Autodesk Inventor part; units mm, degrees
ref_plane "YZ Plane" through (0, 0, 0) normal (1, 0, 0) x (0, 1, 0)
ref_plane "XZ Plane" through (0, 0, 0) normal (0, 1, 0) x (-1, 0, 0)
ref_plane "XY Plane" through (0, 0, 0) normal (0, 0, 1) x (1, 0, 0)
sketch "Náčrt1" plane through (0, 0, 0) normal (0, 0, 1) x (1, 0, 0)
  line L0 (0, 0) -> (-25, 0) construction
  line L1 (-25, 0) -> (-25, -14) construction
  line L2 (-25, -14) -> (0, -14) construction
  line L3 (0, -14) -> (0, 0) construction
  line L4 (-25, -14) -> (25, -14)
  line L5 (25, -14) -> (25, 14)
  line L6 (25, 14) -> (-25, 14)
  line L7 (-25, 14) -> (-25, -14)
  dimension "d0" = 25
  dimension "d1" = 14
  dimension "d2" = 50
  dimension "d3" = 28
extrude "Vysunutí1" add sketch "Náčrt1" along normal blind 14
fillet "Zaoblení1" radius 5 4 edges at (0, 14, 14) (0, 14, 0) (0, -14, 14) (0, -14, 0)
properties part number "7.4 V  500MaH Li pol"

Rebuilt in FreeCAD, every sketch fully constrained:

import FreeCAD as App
import Part
import Sketcher


def edges_at(feature, points):
    """Names of the edges that pass closest to the given points."""
    edges = feature.Shape.Edges
    near = lambda p: min(range(len(edges)), key=lambda i: edges[i].distToShape(Part.Vertex(*p))[0])
    return sorted({f"Edge{near(p) + 1}" for p in points})

doc = App.newDocument("Part")
body = doc.addObject("PartDesign::Body", "Body")

sketch1 = body.newObject("Sketcher::SketchObject", "Sketch")
sketch1.AttachmentSupport = (doc.getObject("XY_Plane"), [""])
sketch1.MapMode = "FlatFace"
sketch1.addGeometry([
    Part.LineSegment(App.Vector(-25, 14, 0), App.Vector(-25, -14, 0)),
    Part.LineSegment(App.Vector(-25, -14, 0), App.Vector(25, -14, 0)),
    Part.LineSegment(App.Vector(25, -14, 0), App.Vector(25, 14, 0)),
    Part.LineSegment(App.Vector(25, 14, 0), App.Vector(-25, 14, 0)),
], False)
sketch1.addConstraint([
    Sketcher.Constraint("Coincident", 0, 2, 1, 1),
    Sketcher.Constraint("Coincident", 1, 2, 2, 1),
    Sketcher.Constraint("Coincident", 2, 2, 3, 1),
    Sketcher.Constraint("Coincident", 3, 2, 0, 1),
    Sketcher.Constraint("Vertical", 0),
    Sketcher.Constraint("Horizontal", 1),
    Sketcher.Constraint("Vertical", 2),
    Sketcher.Constraint("Horizontal", 3),
    Sketcher.Constraint("Symmetric", 0, 2, 2, 2, -1, 1),
    Sketcher.Constraint("DistanceX", 1, 1, 1, 2, 50.0),
    Sketcher.Constraint("DistanceY", 0, 2, 0, 1, 28.0),
])
pad1 = body.newObject("PartDesign::Pad", "Pad")
pad1.Profile = sketch1
pad1.Length = 14
doc.recompute()

fillet = body.newObject("PartDesign::Fillet", "Fillet")
fillet.Base = (pad1, edges_at(pad1, [
    (0, 14, 14),
    (0, 14, 0),
    (0, -14, 14),
    (0, -14, 0),
]))
fillet.Radius = 5

doc.recompute()
